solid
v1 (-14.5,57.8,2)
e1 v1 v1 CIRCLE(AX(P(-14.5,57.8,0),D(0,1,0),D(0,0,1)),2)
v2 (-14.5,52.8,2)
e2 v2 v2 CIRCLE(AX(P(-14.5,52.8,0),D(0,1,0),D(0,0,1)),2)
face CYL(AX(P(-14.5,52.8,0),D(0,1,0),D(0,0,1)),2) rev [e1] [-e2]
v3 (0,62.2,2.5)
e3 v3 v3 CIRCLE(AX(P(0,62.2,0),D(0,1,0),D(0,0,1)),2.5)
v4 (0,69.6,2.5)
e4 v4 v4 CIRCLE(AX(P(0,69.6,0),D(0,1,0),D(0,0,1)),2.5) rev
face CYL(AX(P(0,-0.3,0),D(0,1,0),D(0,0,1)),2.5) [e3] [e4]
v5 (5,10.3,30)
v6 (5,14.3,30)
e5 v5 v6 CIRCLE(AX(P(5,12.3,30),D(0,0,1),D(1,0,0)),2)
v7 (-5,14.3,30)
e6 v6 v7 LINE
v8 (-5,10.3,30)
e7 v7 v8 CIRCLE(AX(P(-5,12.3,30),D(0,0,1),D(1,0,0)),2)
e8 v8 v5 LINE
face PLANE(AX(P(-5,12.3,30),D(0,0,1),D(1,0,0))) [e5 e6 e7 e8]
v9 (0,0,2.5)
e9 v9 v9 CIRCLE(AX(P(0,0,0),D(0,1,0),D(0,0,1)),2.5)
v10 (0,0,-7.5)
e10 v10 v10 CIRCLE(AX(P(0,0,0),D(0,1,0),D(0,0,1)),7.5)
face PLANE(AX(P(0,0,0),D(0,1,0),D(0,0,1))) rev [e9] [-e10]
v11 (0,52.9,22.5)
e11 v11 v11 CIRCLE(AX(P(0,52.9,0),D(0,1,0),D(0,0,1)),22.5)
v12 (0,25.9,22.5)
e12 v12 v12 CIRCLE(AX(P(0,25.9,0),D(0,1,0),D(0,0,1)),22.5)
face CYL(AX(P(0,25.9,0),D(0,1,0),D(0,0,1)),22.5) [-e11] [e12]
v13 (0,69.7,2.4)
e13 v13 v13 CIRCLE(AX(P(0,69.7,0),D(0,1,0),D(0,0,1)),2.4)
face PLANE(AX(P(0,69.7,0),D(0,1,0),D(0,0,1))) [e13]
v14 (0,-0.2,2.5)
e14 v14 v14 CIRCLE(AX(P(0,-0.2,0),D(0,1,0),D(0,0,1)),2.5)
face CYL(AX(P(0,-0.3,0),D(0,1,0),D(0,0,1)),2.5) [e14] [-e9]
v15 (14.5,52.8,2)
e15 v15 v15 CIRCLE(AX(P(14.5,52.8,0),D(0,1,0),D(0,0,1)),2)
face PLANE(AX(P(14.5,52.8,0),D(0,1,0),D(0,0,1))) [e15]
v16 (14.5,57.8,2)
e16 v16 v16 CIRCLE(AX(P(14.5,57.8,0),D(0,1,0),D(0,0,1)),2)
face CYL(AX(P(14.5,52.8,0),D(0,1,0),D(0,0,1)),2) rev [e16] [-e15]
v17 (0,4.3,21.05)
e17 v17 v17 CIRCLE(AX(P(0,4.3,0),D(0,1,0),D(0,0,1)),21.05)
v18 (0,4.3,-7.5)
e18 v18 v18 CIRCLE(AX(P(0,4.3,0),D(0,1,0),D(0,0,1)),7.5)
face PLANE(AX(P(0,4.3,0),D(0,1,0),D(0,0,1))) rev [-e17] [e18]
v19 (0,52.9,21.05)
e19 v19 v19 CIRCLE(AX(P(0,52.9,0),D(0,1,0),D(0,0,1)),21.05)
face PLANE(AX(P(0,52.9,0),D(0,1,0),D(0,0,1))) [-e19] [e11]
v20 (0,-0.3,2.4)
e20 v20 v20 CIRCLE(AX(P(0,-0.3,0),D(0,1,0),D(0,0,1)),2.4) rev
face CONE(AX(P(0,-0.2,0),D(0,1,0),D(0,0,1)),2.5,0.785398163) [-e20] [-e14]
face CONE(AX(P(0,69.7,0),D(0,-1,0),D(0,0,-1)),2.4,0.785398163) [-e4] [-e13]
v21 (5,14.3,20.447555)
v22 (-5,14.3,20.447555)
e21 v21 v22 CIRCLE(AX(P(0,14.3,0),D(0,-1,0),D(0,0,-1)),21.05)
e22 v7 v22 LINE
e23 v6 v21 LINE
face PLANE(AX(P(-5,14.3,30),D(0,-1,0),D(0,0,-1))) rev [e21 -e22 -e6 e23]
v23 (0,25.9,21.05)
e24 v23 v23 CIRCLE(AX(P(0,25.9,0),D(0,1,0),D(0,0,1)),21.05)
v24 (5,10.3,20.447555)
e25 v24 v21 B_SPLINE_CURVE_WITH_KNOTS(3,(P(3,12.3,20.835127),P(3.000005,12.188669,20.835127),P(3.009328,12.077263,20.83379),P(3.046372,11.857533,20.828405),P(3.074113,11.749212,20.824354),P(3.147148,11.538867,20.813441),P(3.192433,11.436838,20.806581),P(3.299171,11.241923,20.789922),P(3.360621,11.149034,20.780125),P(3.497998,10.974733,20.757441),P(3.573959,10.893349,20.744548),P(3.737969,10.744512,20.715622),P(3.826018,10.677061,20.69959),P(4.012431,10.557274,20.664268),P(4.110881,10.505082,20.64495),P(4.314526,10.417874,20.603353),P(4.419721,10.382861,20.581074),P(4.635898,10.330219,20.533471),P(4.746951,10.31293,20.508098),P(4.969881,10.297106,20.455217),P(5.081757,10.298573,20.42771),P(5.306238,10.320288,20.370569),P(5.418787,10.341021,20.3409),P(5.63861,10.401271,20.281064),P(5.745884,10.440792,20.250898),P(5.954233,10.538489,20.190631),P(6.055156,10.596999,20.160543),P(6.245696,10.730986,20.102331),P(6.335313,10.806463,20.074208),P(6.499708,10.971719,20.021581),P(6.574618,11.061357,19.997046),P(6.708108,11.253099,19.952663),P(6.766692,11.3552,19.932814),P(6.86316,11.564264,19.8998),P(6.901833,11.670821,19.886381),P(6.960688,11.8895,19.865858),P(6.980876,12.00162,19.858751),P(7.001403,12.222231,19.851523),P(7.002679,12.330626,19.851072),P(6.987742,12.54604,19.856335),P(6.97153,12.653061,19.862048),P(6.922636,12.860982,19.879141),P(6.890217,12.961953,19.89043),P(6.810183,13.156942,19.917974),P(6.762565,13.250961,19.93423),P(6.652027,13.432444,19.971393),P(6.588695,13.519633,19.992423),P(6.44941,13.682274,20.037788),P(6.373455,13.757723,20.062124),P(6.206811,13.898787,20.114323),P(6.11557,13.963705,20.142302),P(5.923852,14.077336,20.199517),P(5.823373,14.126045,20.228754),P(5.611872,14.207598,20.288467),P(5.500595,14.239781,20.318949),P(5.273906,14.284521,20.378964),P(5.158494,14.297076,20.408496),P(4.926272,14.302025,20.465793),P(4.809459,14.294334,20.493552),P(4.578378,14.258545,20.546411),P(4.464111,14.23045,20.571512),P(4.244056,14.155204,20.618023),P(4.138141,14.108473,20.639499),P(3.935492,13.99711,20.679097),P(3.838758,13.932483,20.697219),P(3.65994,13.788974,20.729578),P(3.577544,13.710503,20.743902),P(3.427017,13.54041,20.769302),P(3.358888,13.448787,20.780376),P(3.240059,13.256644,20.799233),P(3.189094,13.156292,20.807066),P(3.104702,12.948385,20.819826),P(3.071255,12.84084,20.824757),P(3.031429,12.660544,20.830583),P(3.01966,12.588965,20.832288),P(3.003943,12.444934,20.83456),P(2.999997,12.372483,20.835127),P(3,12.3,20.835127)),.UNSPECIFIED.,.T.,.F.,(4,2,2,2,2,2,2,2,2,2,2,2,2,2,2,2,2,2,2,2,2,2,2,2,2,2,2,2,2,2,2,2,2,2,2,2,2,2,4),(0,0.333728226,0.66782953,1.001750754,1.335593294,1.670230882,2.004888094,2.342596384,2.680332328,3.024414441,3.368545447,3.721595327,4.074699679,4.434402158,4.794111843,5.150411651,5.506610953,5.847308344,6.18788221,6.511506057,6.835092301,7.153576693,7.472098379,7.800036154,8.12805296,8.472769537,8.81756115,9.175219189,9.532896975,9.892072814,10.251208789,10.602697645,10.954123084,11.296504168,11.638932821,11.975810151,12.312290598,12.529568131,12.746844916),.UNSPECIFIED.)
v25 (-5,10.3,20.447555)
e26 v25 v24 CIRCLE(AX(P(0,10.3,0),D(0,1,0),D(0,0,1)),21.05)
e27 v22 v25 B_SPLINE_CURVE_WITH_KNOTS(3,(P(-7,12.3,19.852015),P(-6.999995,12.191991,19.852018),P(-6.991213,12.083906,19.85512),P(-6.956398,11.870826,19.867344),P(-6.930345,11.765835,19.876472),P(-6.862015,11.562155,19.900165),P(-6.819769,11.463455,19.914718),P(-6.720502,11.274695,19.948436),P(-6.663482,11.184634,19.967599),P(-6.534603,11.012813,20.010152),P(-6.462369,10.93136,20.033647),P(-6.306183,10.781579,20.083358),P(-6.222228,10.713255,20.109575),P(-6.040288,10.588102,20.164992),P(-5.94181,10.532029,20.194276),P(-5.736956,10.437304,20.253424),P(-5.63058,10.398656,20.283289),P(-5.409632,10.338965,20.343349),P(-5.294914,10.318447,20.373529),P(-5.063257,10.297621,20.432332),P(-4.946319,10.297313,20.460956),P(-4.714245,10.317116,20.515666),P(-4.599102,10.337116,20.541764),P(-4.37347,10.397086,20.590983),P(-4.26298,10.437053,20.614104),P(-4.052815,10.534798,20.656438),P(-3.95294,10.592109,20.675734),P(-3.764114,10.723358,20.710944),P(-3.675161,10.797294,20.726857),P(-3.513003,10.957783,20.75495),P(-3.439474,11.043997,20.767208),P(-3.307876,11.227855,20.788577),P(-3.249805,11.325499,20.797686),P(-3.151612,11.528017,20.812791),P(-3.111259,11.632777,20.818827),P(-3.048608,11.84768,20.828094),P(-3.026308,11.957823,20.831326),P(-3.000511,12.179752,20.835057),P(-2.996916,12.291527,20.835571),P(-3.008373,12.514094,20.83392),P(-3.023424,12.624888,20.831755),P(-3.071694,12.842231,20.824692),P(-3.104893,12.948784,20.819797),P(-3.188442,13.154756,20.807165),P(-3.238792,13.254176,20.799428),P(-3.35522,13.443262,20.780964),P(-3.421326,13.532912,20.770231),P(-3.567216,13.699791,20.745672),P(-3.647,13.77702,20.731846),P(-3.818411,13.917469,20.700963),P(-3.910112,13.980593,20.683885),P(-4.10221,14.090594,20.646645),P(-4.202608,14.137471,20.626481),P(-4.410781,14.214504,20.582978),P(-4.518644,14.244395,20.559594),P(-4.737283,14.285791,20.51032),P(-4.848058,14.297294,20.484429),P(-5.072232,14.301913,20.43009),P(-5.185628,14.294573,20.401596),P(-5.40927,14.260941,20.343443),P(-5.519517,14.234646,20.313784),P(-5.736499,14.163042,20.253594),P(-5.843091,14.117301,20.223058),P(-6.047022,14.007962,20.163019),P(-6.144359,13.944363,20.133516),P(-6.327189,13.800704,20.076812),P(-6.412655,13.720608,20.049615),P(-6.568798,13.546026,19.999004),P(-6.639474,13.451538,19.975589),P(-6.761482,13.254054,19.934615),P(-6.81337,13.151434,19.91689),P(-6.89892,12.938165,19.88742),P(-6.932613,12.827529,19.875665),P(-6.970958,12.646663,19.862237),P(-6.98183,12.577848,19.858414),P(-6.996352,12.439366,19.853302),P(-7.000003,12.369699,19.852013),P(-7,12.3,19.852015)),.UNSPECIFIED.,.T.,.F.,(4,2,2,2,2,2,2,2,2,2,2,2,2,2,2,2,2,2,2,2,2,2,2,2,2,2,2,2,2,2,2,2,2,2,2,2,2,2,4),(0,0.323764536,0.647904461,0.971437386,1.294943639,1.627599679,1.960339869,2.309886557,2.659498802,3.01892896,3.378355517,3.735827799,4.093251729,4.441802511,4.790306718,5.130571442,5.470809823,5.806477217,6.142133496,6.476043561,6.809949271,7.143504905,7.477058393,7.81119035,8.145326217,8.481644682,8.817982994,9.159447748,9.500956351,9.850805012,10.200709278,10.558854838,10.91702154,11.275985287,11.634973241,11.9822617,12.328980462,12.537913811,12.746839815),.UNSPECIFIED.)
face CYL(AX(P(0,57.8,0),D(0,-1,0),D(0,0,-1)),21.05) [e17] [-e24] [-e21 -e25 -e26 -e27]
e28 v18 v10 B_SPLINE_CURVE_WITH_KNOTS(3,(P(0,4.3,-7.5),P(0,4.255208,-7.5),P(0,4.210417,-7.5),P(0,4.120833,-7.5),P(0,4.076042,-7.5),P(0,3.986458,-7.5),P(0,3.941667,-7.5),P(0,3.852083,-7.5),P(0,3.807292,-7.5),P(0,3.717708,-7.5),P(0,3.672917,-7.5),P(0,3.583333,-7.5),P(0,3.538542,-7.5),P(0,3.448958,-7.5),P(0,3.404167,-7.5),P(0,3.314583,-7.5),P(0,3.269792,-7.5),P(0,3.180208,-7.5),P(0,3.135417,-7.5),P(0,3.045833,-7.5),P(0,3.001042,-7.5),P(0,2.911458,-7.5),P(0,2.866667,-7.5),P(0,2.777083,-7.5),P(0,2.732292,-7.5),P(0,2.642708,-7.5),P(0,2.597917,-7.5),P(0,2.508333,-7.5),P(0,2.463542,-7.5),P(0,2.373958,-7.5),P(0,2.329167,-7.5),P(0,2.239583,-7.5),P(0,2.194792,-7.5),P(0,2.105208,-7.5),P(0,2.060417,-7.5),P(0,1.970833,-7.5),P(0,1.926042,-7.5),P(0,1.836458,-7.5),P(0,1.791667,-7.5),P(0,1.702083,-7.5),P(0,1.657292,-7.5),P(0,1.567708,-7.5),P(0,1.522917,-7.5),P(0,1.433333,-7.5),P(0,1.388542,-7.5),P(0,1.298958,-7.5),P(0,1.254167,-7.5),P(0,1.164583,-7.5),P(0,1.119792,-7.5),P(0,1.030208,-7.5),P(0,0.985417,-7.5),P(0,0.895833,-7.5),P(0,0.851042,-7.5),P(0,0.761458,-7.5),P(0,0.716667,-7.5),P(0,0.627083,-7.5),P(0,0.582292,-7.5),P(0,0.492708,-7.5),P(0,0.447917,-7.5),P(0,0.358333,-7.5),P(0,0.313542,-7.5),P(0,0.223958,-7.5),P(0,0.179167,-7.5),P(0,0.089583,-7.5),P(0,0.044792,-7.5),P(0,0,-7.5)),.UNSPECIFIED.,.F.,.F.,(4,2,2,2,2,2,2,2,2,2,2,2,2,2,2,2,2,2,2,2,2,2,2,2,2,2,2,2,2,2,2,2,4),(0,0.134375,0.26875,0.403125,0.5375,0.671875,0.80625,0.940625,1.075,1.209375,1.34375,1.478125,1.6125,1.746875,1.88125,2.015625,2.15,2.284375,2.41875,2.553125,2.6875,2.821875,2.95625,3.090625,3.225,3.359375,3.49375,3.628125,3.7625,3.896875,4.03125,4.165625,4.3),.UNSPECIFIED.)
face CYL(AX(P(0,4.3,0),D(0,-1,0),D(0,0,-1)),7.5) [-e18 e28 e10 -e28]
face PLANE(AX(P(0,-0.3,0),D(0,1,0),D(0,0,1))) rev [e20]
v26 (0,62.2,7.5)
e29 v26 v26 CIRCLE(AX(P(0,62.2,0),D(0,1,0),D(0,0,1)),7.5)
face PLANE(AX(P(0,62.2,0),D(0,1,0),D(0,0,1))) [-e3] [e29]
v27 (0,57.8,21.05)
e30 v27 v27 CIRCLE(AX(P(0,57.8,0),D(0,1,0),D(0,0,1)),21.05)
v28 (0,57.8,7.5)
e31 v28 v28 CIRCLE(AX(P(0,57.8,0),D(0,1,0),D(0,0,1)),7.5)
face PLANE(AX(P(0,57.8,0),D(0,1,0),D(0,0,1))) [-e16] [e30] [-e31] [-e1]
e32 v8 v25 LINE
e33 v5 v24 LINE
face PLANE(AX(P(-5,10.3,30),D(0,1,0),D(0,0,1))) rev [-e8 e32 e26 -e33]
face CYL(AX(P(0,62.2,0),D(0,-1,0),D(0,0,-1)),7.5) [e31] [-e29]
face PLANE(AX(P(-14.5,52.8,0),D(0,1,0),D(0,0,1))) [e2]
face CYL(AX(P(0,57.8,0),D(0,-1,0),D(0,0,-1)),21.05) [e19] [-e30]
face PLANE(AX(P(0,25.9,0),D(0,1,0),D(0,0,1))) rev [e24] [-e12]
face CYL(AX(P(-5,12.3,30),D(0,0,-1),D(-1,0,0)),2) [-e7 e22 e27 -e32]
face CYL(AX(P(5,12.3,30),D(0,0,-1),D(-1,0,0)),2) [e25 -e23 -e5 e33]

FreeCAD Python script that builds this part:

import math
import FreeCAD as App
import Part
import Sketcher
from FreeCAD import Vector
Q = App.Units.Quantity


def edges_at(feature, points):
    """Names of the edges that pass closest to the given points."""
    edges = feature.Shape.Edges
    near = lambda p: min(range(len(edges)), key=lambda i: edges[i].distToShape(Part.Vertex(*p))[0])
    return sorted({f"Edge{near(p) + 1}" for p in points})

doc = App.newDocument("Part")
body = doc.addObject("PartDesign::Body", "Body")

sketch1 = body.newObject("Sketcher::SketchObject", "Sketch")
sketch1.AttachmentSupport = (doc.getObject("XZ_Plane"), [""])
sketch1.MapMode = "FlatFace"
sketch1.addGeometry(Part.Circle(Vector(0, 0, 0), Vector(0, 0, 1), 8), False)
sketch1.addConstraint([
    Sketcher.Constraint("Coincident", 0, 3, -1, 1),
    Sketcher.Constraint("Diameter", 0, Q("15 mm")),
])
pad1 = body.newObject("PartDesign::Pad", "Pad")
pad1.Profile = sketch1
pad1.Length = 4.3
pad1.Reversed = True

sketch2 = body.newObject("Sketcher::SketchObject", "Sketch001")
sketch2.AttachmentSupport = (doc.getObject("XZ_Plane"), [""])
sketch2.MapMode = "FlatFace"
sketch2.AttachmentOffset = App.Placement(Vector(0, 0, -4.3), App.Rotation())
sketch2.addGeometry(Part.Circle(Vector(0, 0, 0), Vector(0, 0, 1), 21), False)
sketch2.addConstraint([
    Sketcher.Constraint("Coincident", 0, 3, -1, 1),
    Sketcher.Constraint("Diameter", 0, Q("42.1 mm")),
])
pad2 = body.newObject("PartDesign::Pad", "Pad001")
pad2.Profile = sketch2
pad2.Length = 53.5
pad2.Reversed = True

sketch3 = body.newObject("Sketcher::SketchObject", "Sketch002")
sketch3.AttachmentSupport = (doc.getObject("XZ_Plane"), [""])
sketch3.MapMode = "FlatFace"
sketch3.AttachmentOffset = App.Placement(Vector(0, 0, -57.8), App.Rotation())
sketch3.addGeometry(Part.Circle(Vector(0, 0, 0), Vector(0, 0, 1), 8), False)
sketch3.addConstraint([
    Sketcher.Constraint("Coincident", 0, 3, -1, 1),
    Sketcher.Constraint("Diameter", 0, Q("15 mm")),
])
pad3 = body.newObject("PartDesign::Pad", "Pad002")
pad3.Profile = sketch3
pad3.Length = 4.4
pad3.Reversed = True

sketch4 = body.newObject("Sketcher::SketchObject", "Sketch003")
sketch4.AttachmentSupport = (doc.getObject("XZ_Plane"), [""])
sketch4.MapMode = "FlatFace"
sketch4.AttachmentOffset = App.Placement(Vector(0, 0, -52.9), App.Rotation())
sketch4.addGeometry(Part.Circle(Vector(0, 0, 0), Vector(0, 0, 1), 22), False)
sketch4.addConstraint([
    Sketcher.Constraint("Coincident", 0, 3, -1, 1),
    Sketcher.Constraint("Diameter", 0, Q("45 mm")),
])
pad4 = body.newObject("PartDesign::Pad", "Pad003")
pad4.Profile = sketch4
pad4.Length = 27

sketch5 = body.newObject("Sketcher::SketchObject", "Sketch004")
sketch5.AttachmentSupport = (doc.getObject("XZ_Plane"), [""])
sketch5.MapMode = "FlatFace"
sketch5.AttachmentOffset = App.Placement(Vector(0, 0, -69.7), App.Rotation())
sketch5.addGeometry(Part.Circle(Vector(0, 0, 0), Vector(0, 0, 1), 2.5), False)
sketch5.addConstraint([
    Sketcher.Constraint("Coincident", 0, 3, -1, 1),
    Sketcher.Constraint("Diameter", 0, Q("5 mm")),
])
pad5 = body.newObject("PartDesign::Pad", "Pad004")
pad5.Profile = sketch5
pad5.Length = 70

sketch6 = body.newObject("Sketcher::SketchObject", "Sketch005")
sketch6.AttachmentSupport = (doc.getObject("XZ_Plane"), [""])
sketch6.MapMode = "FlatFace"
sketch6.AttachmentOffset = App.Placement(Vector(0, 0, -57.8), App.Rotation())
sketch6.addGeometry([
    Part.Circle(Vector(14.5, 0, 0), Vector(0, 0, 1), 2),
    Part.Circle(Vector(-14.5, 0, 0), Vector(0, 0, 1), 2),
], False)
sketch6.addConstraint([
    Sketcher.Constraint("Equal", 0, 1),
    Sketcher.Constraint("Symmetric", 0, 3, 1, 3, -1, 1),
    Sketcher.Constraint("PointOnObject", 0, 3, -1),
    Sketcher.Constraint("Diameter", 0, Q("4 mm")),
    Sketcher.Constraint("DistanceX", 1, 3, 0, 3, Q("29 mm")),
])
pocket1 = body.newObject("PartDesign::Pocket", "Pocket")
pocket1.Profile = sketch6
pocket1.Length = 5
pocket1.Reversed = True
doc.recompute()

chamfer = body.newObject("PartDesign::Chamfer", "Chamfer")
chamfer.Base = (pocket1, edges_at(pocket1, [(0, -0.3, -2.5), (0, 69.7, -2.5)]))
chamfer.Size = 0.1

sketch7 = body.newObject("Sketcher::SketchObject", "Sketch006")
sketch7.AttachmentSupport = (doc.getObject("XY_Plane"), [""])
sketch7.MapMode = "FlatFace"
sketch7.addGeometry([
    Part.LineSegment(Vector(5, 14.3, 0), Vector(-5, 14.3, 0)),
    Part.ArcOfCircle(Part.Circle(Vector(-5, 12.3, 0), Vector(0, 0, 1), 2), math.radians(90), math.radians(270)),
    Part.LineSegment(Vector(-5, 10.3, 0), Vector(5, 10.3, 0)),
    Part.ArcOfCircle(Part.Circle(Vector(5, 12.3, 0), Vector(0, 0, 1), 2), math.radians(-90), math.radians(90)),
], False)
sketch7.addConstraint([
    Sketcher.Constraint("Tangent", 0, 2, 1, 1),
    Sketcher.Constraint("Tangent", 1, 2, 2, 1),
    Sketcher.Constraint("Tangent", 2, 2, 3, 1),
    Sketcher.Constraint("Tangent", 3, 2, 0, 1),
    Sketcher.Constraint("Horizontal", 0),
    Sketcher.Constraint("Horizontal", 2),
    Sketcher.Constraint("Radius", 1, Q("2 mm")),
    Sketcher.Constraint("DistanceX", 0, 2, 0, 1, Q("10 mm")),
    Sketcher.Constraint("DistanceX", 1, 3, -1, 1, Q("5 mm")),
    Sketcher.Constraint("DistanceY", -1, 1, 1, 3, Q("12.3 mm")),
])
pad6 = body.newObject("PartDesign::Pad", "Pad005")
pad6.Profile = sketch7
pad6.Length = 30

doc.recompute()
